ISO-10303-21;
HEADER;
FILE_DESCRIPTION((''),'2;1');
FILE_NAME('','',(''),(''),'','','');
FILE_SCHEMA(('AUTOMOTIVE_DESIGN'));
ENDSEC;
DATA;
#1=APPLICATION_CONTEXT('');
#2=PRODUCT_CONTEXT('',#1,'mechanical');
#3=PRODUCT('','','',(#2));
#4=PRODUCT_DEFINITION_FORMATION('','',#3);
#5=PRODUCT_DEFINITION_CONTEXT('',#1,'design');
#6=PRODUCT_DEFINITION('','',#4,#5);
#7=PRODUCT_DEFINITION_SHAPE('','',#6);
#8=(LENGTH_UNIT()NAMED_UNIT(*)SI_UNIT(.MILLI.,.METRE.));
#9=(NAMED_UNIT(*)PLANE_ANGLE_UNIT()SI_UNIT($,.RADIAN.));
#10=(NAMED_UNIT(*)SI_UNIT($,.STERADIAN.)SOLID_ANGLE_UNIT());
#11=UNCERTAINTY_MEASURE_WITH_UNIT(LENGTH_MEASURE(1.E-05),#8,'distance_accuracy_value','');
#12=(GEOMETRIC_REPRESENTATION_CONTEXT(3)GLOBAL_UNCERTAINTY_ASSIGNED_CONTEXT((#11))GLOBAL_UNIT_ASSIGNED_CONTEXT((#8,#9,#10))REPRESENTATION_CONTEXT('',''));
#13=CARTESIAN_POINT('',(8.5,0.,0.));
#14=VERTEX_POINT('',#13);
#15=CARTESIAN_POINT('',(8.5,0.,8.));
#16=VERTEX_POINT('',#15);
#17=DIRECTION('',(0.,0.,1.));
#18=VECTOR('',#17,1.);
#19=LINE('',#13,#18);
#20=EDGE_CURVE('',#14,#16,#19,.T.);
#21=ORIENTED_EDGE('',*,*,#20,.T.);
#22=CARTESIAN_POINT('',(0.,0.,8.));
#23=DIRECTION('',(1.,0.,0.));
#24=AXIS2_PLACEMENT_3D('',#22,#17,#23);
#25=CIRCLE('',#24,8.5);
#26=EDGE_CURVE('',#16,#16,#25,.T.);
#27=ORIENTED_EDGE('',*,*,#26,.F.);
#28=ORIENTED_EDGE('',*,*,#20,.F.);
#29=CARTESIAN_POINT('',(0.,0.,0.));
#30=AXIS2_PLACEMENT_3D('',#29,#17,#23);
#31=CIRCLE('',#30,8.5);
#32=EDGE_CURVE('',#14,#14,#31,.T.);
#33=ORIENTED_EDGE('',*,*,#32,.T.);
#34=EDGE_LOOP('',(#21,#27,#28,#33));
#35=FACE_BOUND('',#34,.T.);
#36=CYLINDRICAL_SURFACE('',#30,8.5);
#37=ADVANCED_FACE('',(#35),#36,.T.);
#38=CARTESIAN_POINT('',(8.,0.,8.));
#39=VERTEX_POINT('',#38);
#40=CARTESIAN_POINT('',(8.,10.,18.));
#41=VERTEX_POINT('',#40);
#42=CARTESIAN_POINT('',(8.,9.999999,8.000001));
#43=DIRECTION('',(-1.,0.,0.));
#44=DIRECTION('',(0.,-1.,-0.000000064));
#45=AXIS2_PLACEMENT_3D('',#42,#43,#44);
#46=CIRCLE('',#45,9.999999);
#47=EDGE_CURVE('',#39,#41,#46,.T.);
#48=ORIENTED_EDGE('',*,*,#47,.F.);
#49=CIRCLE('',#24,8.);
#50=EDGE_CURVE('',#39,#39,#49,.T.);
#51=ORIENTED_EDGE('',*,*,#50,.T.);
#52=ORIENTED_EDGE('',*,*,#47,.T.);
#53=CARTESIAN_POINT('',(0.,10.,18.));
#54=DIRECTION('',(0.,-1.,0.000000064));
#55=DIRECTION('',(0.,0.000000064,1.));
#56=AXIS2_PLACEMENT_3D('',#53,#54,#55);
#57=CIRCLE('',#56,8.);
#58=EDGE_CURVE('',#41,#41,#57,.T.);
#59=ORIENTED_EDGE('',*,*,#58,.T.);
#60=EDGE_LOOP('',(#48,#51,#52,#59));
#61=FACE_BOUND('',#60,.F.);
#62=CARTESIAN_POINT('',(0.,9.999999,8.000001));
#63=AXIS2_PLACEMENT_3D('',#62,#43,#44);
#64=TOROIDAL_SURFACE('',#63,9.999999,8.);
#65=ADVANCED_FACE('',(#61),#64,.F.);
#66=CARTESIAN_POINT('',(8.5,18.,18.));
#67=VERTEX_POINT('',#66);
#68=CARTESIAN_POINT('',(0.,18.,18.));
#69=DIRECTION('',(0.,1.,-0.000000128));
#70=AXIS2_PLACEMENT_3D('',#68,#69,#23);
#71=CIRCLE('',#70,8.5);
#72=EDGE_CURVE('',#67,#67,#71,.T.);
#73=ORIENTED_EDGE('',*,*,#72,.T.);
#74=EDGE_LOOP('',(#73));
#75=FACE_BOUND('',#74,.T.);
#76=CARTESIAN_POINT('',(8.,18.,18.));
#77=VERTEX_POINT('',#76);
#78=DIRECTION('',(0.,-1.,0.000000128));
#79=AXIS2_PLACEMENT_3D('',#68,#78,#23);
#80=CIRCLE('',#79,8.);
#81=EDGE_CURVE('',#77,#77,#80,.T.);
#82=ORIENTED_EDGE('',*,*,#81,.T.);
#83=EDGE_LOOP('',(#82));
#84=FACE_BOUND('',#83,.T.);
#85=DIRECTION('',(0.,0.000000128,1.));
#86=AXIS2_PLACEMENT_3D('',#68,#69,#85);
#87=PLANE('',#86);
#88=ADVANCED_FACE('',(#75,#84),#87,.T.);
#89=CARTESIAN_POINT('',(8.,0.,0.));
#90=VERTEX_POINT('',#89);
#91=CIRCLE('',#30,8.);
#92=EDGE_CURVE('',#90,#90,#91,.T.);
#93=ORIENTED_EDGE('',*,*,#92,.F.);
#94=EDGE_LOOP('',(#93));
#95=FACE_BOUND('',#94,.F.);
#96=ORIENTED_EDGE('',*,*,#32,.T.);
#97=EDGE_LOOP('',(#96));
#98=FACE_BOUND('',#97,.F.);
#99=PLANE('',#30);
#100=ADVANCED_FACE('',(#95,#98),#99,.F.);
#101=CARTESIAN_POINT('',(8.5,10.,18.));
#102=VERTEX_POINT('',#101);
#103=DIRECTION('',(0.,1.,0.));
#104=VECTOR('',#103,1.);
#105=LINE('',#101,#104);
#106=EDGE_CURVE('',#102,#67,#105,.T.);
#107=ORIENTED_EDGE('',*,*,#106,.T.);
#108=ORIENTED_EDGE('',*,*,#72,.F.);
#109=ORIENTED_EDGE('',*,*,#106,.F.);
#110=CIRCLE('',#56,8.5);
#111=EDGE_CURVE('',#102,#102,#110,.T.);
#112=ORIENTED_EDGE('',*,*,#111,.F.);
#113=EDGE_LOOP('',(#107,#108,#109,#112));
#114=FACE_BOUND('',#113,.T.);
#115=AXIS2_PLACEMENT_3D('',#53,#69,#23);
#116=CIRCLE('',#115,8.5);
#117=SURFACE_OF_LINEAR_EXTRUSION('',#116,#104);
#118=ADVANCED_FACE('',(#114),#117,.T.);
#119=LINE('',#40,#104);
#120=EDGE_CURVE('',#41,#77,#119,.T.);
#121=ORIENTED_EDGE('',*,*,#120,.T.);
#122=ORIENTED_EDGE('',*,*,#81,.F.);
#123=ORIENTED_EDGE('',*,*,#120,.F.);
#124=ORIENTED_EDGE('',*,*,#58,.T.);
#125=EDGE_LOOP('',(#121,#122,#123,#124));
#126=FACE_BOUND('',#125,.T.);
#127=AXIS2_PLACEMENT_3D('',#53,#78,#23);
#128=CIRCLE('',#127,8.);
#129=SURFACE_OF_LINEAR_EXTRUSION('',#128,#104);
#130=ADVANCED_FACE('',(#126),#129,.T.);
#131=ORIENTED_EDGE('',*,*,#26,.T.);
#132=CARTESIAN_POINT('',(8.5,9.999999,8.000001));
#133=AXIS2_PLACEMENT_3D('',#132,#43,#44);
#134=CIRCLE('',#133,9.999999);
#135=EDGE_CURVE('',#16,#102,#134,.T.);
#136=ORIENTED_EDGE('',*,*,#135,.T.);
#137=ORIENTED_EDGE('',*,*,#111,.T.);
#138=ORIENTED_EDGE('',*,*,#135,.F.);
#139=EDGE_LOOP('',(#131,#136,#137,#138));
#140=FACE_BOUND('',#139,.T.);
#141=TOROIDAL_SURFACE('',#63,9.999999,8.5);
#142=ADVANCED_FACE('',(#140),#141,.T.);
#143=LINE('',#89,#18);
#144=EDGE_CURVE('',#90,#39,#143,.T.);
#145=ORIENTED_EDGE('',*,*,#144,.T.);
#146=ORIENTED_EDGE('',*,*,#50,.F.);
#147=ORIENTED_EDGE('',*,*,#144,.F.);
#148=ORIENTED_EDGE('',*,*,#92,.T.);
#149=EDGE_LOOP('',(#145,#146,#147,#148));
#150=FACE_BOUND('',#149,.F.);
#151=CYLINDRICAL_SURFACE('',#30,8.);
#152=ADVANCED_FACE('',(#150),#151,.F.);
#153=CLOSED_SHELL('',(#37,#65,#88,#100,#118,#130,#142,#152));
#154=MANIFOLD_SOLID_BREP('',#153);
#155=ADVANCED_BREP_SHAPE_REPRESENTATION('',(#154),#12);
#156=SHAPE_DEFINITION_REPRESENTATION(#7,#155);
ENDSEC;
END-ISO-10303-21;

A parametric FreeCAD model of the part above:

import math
import FreeCAD as App
import Part
import Sketcher
from FreeCAD import Vector

doc = App.newDocument("Part")
body = doc.addObject("PartDesign::Body", "Body")

# Sketch on XY plane
sketch1 = body.newObject("Sketcher::SketchObject", "Sketch")
sketch1.AttachmentSupport = (doc.getObject("XY_Plane"), [""])
sketch1.MapMode = "FlatFace"
sketch1.addGeometry([
    Part.Circle(Vector(0, 0, 0), Vector(0, 0, 1), 8),
    Part.Circle(Vector(0, 0, 0), Vector(0, 0, 1), 8),
], False)
sketch1.addConstraint([
    Sketcher.Constraint("Coincident", 0, 3, -1, 1),
    Sketcher.Constraint("Coincident", 1, 3, -1, 1),
    Sketcher.Constraint("Diameter", 0, 17.0),
    Sketcher.Constraint("Diameter", 1, 16.0),
])

# Sketch on YZ plane
sketch2 = body.newObject("Sketcher::SketchObject", "Sketch001")
sketch2.AttachmentSupport = (doc.getObject("YZ_Plane"), [""])
sketch2.MapMode = "FlatFace"
sketch2.addGeometry([
    Part.LineSegment(Vector(0, 0, 0), Vector(0, 8, 0)),
    Part.ArcOfCircle(Part.Circle(Vector(10, 8, 0), Vector(0, 0, 1), 10), math.radians(90), math.radians(180)),
    Part.LineSegment(Vector(10, 18, 0), Vector(18, 18, 0)),
], False)
sketch2.addConstraint([
    Sketcher.Constraint("Tangent", 0, 2, 1, 2),
    Sketcher.Constraint("Tangent", 1, 1, 2, 1),
    Sketcher.Constraint("Vertical", 0),
    Sketcher.Constraint("Horizontal", 2),
    Sketcher.Constraint("Coincident", 0, 1, -1, 1),
    Sketcher.Constraint("Equal", 2, 0),
    Sketcher.Constraint("Radius", 1, 9.999999),
    Sketcher.Constraint("DistanceX", 2, 1, 2, 2, 8.0),
])
doc.recompute()

additivepipe = body.newObject("PartDesign::AdditivePipe", "AdditivePipe")
additivepipe.Profile = sketch1
additivepipe.Spine = (sketch2, ["Edge1", "Edge2", "Edge3"])

doc.recompute()
